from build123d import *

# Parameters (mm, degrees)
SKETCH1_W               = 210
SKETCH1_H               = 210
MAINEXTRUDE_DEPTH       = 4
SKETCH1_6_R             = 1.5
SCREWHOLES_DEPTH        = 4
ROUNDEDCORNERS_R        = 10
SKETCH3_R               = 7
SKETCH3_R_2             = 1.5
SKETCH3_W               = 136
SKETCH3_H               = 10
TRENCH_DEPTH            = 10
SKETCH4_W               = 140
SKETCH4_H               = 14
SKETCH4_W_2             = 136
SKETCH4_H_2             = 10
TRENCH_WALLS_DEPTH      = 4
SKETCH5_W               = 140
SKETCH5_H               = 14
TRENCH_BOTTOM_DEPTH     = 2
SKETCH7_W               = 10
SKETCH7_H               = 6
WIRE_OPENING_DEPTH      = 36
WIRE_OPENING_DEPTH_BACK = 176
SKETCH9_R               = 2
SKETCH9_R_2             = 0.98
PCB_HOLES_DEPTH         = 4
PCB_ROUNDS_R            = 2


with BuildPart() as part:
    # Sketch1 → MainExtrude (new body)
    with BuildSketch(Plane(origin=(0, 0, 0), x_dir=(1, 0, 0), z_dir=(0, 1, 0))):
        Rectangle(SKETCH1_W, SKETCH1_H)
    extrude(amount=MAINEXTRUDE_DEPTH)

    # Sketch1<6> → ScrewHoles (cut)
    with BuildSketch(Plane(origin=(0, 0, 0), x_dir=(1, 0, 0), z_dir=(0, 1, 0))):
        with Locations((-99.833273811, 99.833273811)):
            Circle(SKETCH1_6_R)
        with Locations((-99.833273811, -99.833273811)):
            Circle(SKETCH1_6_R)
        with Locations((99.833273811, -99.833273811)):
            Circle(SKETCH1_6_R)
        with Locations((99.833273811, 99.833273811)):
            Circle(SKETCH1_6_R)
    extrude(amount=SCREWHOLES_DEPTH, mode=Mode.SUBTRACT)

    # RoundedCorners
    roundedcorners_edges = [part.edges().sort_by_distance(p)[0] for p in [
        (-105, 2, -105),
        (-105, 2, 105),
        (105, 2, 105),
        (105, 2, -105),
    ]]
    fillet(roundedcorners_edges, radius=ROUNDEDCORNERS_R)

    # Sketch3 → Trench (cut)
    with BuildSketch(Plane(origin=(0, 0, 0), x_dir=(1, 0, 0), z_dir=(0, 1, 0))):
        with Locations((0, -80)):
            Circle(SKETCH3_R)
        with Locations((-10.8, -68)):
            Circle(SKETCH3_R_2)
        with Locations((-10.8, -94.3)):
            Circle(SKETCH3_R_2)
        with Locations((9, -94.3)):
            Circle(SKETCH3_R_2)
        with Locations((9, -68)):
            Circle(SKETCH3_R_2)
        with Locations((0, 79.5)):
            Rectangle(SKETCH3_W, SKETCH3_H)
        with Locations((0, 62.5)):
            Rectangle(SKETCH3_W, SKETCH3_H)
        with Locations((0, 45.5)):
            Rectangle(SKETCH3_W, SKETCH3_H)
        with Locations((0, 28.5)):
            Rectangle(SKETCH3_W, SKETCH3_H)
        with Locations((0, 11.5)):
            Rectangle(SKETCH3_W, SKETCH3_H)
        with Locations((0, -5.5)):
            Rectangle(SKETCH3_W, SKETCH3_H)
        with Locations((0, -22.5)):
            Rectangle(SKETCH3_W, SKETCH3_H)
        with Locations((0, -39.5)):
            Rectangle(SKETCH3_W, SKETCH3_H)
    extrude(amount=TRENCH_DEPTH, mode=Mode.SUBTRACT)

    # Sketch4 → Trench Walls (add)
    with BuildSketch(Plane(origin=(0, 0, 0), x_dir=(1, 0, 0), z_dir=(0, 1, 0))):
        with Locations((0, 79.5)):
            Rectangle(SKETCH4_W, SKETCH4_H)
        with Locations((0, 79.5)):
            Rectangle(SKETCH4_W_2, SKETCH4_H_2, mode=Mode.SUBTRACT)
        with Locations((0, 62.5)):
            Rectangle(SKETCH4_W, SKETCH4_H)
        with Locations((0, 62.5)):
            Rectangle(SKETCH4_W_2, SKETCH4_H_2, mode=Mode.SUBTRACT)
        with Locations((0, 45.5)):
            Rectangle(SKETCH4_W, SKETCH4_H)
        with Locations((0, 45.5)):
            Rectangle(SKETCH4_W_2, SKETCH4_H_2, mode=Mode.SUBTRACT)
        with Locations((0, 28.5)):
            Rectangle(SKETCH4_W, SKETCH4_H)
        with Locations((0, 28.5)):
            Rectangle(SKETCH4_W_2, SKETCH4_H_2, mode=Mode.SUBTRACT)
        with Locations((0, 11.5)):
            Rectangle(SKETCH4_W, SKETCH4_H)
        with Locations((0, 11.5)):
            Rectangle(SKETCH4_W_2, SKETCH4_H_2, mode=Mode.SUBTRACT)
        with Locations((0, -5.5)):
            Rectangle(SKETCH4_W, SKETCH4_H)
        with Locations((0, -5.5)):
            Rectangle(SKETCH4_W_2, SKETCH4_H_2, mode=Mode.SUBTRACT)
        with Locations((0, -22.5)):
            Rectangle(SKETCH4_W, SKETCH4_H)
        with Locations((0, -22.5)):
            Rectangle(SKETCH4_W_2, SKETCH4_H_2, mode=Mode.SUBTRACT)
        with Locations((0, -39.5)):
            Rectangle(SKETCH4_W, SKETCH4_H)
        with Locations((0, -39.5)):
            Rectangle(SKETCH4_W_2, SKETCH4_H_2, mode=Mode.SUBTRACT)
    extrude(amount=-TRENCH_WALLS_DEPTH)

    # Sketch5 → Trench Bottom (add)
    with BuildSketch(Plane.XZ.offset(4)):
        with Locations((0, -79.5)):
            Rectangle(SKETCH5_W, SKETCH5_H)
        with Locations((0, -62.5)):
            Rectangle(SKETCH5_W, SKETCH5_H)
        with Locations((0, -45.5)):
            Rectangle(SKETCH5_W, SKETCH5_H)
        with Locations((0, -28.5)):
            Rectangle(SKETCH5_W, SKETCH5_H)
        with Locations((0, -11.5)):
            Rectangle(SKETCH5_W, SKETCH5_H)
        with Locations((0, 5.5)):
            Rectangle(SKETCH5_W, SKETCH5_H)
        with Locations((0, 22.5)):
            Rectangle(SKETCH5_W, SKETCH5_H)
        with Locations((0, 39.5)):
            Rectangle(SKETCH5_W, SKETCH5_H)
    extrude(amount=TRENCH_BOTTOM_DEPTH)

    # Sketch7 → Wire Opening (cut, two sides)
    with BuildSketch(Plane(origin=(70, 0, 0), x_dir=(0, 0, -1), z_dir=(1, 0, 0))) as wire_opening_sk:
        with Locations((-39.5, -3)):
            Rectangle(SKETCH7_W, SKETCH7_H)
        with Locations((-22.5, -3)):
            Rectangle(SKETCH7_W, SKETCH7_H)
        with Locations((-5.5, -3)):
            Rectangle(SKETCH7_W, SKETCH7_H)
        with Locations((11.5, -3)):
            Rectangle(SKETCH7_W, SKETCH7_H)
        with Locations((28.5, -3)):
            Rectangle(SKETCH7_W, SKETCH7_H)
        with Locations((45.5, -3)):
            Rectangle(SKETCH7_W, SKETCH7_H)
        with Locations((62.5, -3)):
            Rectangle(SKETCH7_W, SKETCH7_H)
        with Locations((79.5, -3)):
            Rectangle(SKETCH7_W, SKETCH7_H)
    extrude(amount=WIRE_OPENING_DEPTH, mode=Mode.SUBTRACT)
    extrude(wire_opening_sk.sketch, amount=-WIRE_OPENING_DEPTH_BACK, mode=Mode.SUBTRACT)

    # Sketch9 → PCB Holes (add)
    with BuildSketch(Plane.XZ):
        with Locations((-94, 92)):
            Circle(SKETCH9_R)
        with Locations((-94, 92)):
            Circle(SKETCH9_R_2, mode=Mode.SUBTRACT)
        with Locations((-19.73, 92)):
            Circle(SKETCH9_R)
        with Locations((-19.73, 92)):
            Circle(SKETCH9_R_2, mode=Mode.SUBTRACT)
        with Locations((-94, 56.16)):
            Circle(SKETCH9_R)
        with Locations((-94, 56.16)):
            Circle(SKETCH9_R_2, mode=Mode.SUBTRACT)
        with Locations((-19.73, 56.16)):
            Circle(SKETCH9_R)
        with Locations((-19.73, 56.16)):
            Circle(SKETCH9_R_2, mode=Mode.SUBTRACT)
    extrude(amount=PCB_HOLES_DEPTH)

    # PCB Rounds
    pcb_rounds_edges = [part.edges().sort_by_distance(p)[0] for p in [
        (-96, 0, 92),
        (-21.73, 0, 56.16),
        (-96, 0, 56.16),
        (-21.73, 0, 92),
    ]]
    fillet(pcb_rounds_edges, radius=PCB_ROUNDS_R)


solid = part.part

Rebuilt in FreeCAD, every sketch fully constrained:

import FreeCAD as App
import Part
import Sketcher


def edges_at(feature, points):
    """Names of the edges that pass closest to the given points."""
    edges = feature.Shape.Edges
    near = lambda p: min(range(len(edges)), key=lambda i: edges[i].distToShape(Part.Vertex(*p))[0])
    return sorted({f"Edge{near(p) + 1}" for p in points})


def add_polygon(sketch, points):
    """Adds a closed chain of lines whose ends are joined by coincident constraints."""
    first, n = sketch.GeometryCount, len(points)
    for a, b in zip(points, points[1:] + points[:1]):
        sketch.addGeometry(Part.LineSegment(App.Vector(*a, 0), App.Vector(*b, 0)), False)
    for i in range(n):
        sketch.addConstraint(Sketcher.Constraint("Coincident", first + i, 2, first + (i + 1) % n, 1))

doc = App.newDocument("Part")
params = doc.addObject("Spreadsheet::Sheet", "Params")
for row, (alias, value) in enumerate([
    ("sketch1_width", "210 mm"),
    ("pad1_length", "4 mm"),
    ("sketch2_diameter", "3 mm"),
    ("pocket1_length", "4 mm"),
    ("fillet_radius", "10 mm"),
    ("sketch3_diameter", "14 mm"),
    ("sketch3_diameter2", "3 mm"),
    ("sketch3_width", "136 mm"),
    ("sketch3_height", "10 mm"),
    ("pocket2_length", "10 mm"),
    ("sketch4_width", "140 mm"),
    ("sketch4_width2", "136 mm"),
    ("sketch4_height", "14 mm"),
    ("sketch4_height2", "10 mm"),
    ("pad2_length", "4 mm"),
    ("sketch5_width", "140 mm"),
    ("sketch5_height", "14 mm"),
    ("pad3_length", "2 mm"),
    ("sketch6_width", "6 mm"),
    ("sketch6_height", "10 mm"),
    ("sketch7_diameter", "4 mm"),
    ("sketch7_diameter2", "1.96 mm"),
    ("pad4_length", "4 mm"),
    ("fillet2_radius", "2 mm"),
], start=1):
    params.set(f"A{row}", alias)
    params.set(f"B{row}", "=" + value)
    params.setAlias(f"B{row}", alias)

body = doc.addObject("PartDesign::Body", "Body")

# Sketch on XZ plane
sketch1 = body.newObject("Sketcher::SketchObject", "Sketch")
sketch1.AttachmentSupport = (doc.getObject("XZ_Plane"), [""])
sketch1.MapMode = "FlatFace"
add_polygon(sketch1, [(-105, -105), (-105, 105), (105, 105), (105, -105)])  # lines 0-3
sketch1.addConstraint(Sketcher.Constraint("Vertical", 0))
sketch1.addConstraint(Sketcher.Constraint("Horizontal", 1))
sketch1.addConstraint(Sketcher.Constraint("Vertical", 2))
sketch1.addConstraint(Sketcher.Constraint("Horizontal", 3))
sketch1.addConstraint(Sketcher.Constraint("Symmetric", 0, 2, 2, 2, -1, 1))
sketch1.addConstraint(Sketcher.Constraint("Equal", 3, 0))
sketch1.addConstraint(Sketcher.Constraint("DistanceX", 1, 1, 1, 2, 210.0))
sketch1.setExpression("Constraints[10]", "Params.sketch1_width")
pad1 = body.newObject("PartDesign::Pad", "Pad")
pad1.Profile = sketch1
pad1.setExpression("Length", "Params.pad1_length")
pad1.Reversed = True

# Sketch on XZ plane
sketch2 = body.newObject("Sketcher::SketchObject", "Sketch001")
sketch2.AttachmentSupport = (doc.getObject("XZ_Plane"), [""])
sketch2.MapMode = "FlatFace"
sketch2.addGeometry(Part.Circle(App.Vector(-99.8, -99.8, 0), App.Vector(0, 0, 1), 1.5), False)
sketch2.addGeometry(Part.Circle(App.Vector(-99.8, 99.8, 0), App.Vector(0, 0, 1), 1.5), False)
sketch2.addGeometry(Part.Circle(App.Vector(99.8, 99.8, 0), App.Vector(0, 0, 1), 1.5), False)
sketch2.addGeometry(Part.Circle(App.Vector(99.8, -99.8, 0), App.Vector(0, 0, 1), 1.5), False)
sketch2.addConstraint(Sketcher.Constraint("Equal", 0, 1))
sketch2.addConstraint(Sketcher.Constraint("Equal", 1, 2))
sketch2.addConstraint(Sketcher.Constraint("Equal", 2, 3))
sketch2.addConstraint(Sketcher.Constraint("Symmetric", 0, 3, 2, 3, -1, 1))
sketch2.addConstraint(Sketcher.Constraint("Symmetric", 1, 3, 3, 3, -1, 1))
sketch2.addConstraint(Sketcher.Constraint("Symmetric", 1, 3, 2, 3, -2))
sketch2.addConstraint(Sketcher.Constraint("Diameter", 0, 3.0))
sketch2.addConstraint(Sketcher.Constraint("DistanceX", 0, 3, -1, 1, 99.833274))
sketch2.addConstraint(Sketcher.Constraint("DistanceY", 0, 3, -1, 1, 99.833274))
sketch2.setExpression("Constraints[6]", "Params.sketch2_diameter")
pocket1 = body.newObject("PartDesign::Pocket", "Pocket")
pocket1.Profile = sketch2
pocket1.setExpression("Length", "Params.pocket1_length")
doc.recompute()

fillet = body.newObject("PartDesign::Fillet", "Fillet")
fillet.Base = (pocket1, edges_at(pocket1, [
    (-105, 2, -105),
    (-105, 2, 105),
    (105, 2, 105),
    (105, 2, -105),
]))
fillet.setExpression("Radius", "Params.fillet_radius")

# Sketch on XZ plane
sketch3 = body.newObject("Sketcher::SketchObject", "Sketch002")
sketch3.AttachmentSupport = (doc.getObject("XZ_Plane"), [""])
sketch3.MapMode = "FlatFace"
sketch3.addGeometry(Part.Circle(App.Vector(0, 80, 0), App.Vector(0, 0, 1), 7), False)  # 0
sketch3.addGeometry(Part.Circle(App.Vector(-10.8, 68, 0), App.Vector(0, 0, 1), 1.5), False)  # 1
sketch3.addGeometry(Part.Circle(App.Vector(-10.8, 94.3, 0), App.Vector(0, 0, 1), 1.5), False)  # 2
sketch3.addGeometry(Part.Circle(App.Vector(9, 94.3, 0), App.Vector(0, 0, 1), 1.5), False)  # 3
sketch3.addGeometry(Part.Circle(App.Vector(9, 68, 0), App.Vector(0, 0, 1), 1.5), False)  # 4
add_polygon(sketch3, [(-68, -84.5), (-68, -74.5), (68, -74.5), (68, -84.5)])  # lines 5-8
add_polygon(sketch3, [(-68, -67.5), (-68, -57.5), (68, -57.5), (68, -67.5)])  # lines 9-12
add_polygon(sketch3, [(-68, -50.5), (-68, -40.5), (68, -40.5), (68, -50.5)])  # lines 13-16
add_polygon(sketch3, [(-68, -33.5), (-68, -23.5), (68, -23.5), (68, -33.5)])  # lines 17-20
add_polygon(sketch3, [(-68, -16.5), (-68, -6.5), (68, -6.5), (68, -16.5)])  # lines 21-24
add_polygon(sketch3, [(-68, 0.5), (-68, 10.5), (68, 10.5), (68, 0.5)])  # lines 25-28
add_polygon(sketch3, [(-68, 17.5), (-68, 27.5), (68, 27.5), (68, 17.5)])  # lines 29-32
add_polygon(sketch3, [(-68, 34.5), (-68, 44.5), (68, 44.5), (68, 34.5)])  # lines 33-36
sketch3.addConstraint(Sketcher.Constraint("Vertical", 5))
sketch3.addConstraint(Sketcher.Constraint("Horizontal", 6))
sketch3.addConstraint(Sketcher.Constraint("Vertical", 7))
sketch3.addConstraint(Sketcher.Constraint("Horizontal", 8))
sketch3.addConstraint(Sketcher.Constraint("Vertical", 9))
sketch3.addConstraint(Sketcher.Constraint("Horizontal", 10))
sketch3.addConstraint(Sketcher.Constraint("Vertical", 11))
sketch3.addConstraint(Sketcher.Constraint("Horizontal", 12))
sketch3.addConstraint(Sketcher.Constraint("Vertical", 13))
sketch3.addConstraint(Sketcher.Constraint("Horizontal", 14))
sketch3.addConstraint(Sketcher.Constraint("Vertical", 15))
sketch3.addConstraint(Sketcher.Constraint("Horizontal", 16))
sketch3.addConstraint(Sketcher.Constraint("Vertical", 17))
sketch3.addConstraint(Sketcher.Constraint("Horizontal", 18))
sketch3.addConstraint(Sketcher.Constraint("Vertical", 19))
sketch3.addConstraint(Sketcher.Constraint("Horizontal", 20))
sketch3.addConstraint(Sketcher.Constraint("Vertical", 21))
sketch3.addConstraint(Sketcher.Constraint("Horizontal", 22))
sketch3.addConstraint(Sketcher.Constraint("Vertical", 23))
sketch3.addConstraint(Sketcher.Constraint("Horizontal", 24))
sketch3.addConstraint(Sketcher.Constraint("Vertical", 25))
sketch3.addConstraint(Sketcher.Constraint("Horizontal", 26))
sketch3.addConstraint(Sketcher.Constraint("Vertical", 27))
sketch3.addConstraint(Sketcher.Constraint("Horizontal", 28))
sketch3.addConstraint(Sketcher.Constraint("Vertical", 29))
sketch3.addConstraint(Sketcher.Constraint("Horizontal", 30))
sketch3.addConstraint(Sketcher.Constraint("Vertical", 31))
sketch3.addConstraint(Sketcher.Constraint("Horizontal", 32))
sketch3.addConstraint(Sketcher.Constraint("Vertical", 33))
sketch3.addConstraint(Sketcher.Constraint("Horizontal", 34))
sketch3.addConstraint(Sketcher.Constraint("Vertical", 35))
sketch3.addConstraint(Sketcher.Constraint("Horizontal", 36))
sketch3.addConstraint(Sketcher.Constraint("Equal", 1, 2))
sketch3.addConstraint(Sketcher.Constraint("Equal", 2, 3))
sketch3.addConstraint(Sketcher.Constraint("Equal", 3, 4))
sketch3.addConstraint(Sketcher.Constraint("PointOnObject", 0, 3, -2))
sketch3.addConstraint(Sketcher.Constraint("Horizontal", 2, 3, 3, 3))
sketch3.addConstraint(Sketcher.Constraint("Horizontal", 1, 3, 4, 3))
sketch3.addConstraint(Sketcher.Constraint("Vertical", 1, 3, 2, 3))
sketch3.addConstraint(Sketcher.Constraint("Vertical", 3, 3, 4, 3))
sketch3.addConstraint(Sketcher.Constraint("Vertical", 8, 2, 9, 2))
sketch3.addConstraint(Sketcher.Constraint("Vertical", 7, 2, 10, 2))
sketch3.addConstraint(Sketcher.Constraint("Vertical", 12, 2, 13, 2))
sketch3.addConstraint(Sketcher.Constraint("Vertical", 11, 2, 14, 2))
sketch3.addConstraint(Sketcher.Constraint("Vertical", 16, 2, 17, 2))
sketch3.addConstraint(Sketcher.Constraint("Vertical", 15, 2, 18, 2))
sketch3.addConstraint(Sketcher.Constraint("Vertical", 20, 2, 21, 2))
sketch3.addConstraint(Sketcher.Constraint("Vertical", 19, 2, 22, 2))
sketch3.addConstraint(Sketcher.Constraint("Vertical", 24, 2, 25, 2))
sketch3.addConstraint(Sketcher.Constraint("Vertical", 23, 2, 26, 2))
sketch3.addConstraint(Sketcher.Constraint("Vertical", 28, 2, 29, 2))
sketch3.addConstraint(Sketcher.Constraint("Vertical", 27, 2, 30, 2))
sketch3.addConstraint(Sketcher.Constraint("Vertical", 32, 2, 33, 2))
sketch3.addConstraint(Sketcher.Constraint("Vertical", 31, 2, 34, 2))
sketch3.addConstraint(Sketcher.Constraint("Equal", 7, 9))
sketch3.addConstraint(Sketcher.Constraint("Equal", 11, 13))
sketch3.addConstraint(Sketcher.Constraint("Equal", 15, 17))
sketch3.addConstraint(Sketcher.Constraint("Equal", 19, 21))
sketch3.addConstraint(Sketcher.Constraint("Equal", 23, 25))
sketch3.addConstraint(Sketcher.Constraint("Equal", 27, 29))
sketch3.addConstraint(Sketcher.Constraint("Equal", 31, 33))
sketch3.addConstraint(Sketcher.Constraint("Diameter", 0, 14.0))
sketch3.addConstraint(Sketcher.Constraint("Diameter", 1, 3.0))
sketch3.addConstraint(Sketcher.Constraint("DistanceX", 6, 1, 6, 2, 136.0))
sketch3.addConstraint(Sketcher.Constraint("DistanceY", 5, 1, 5, 2, 10.0))
sketch3.addConstraint(Sketcher.Constraint("DistanceY", -1, 1, 0, 3, 80.0))
sketch3.addConstraint(Sketcher.Constraint("DistanceY", -1, 1, 1, 3, 68.0))
sketch3.addConstraint(Sketcher.Constraint("DistanceX", -1, 1, 3, 3, 9.0))
sketch3.addConstraint(Sketcher.Constraint("DistanceX", 5, 2, -1, 1, 68.0))
sketch3.addConstraint(Sketcher.Constraint("DistanceY", 5, 2, 9, 2, 17.0))
sketch3.addConstraint(Sketcher.Constraint("DistanceY", 9, 2, 13, 2, 17.0))
sketch3.addConstraint(Sketcher.Constraint("DistanceY", 13, 2, 17, 2, 17.0))
sketch3.addConstraint(Sketcher.Constraint("DistanceY", 17, 2, 21, 2, 17.0))
sketch3.addConstraint(Sketcher.Constraint("DistanceY", 21, 2, 25, 2, 17.0))
sketch3.addConstraint(Sketcher.Constraint("DistanceY", 25, 2, 29, 2, 17.0))
sketch3.addConstraint(Sketcher.Constraint("DistanceY", 29, 2, 33, 2, 17.0))
sketch3.addConstraint(Sketcher.Constraint("DistanceX", 1, 3, -1, 1, 10.8))
sketch3.addConstraint(Sketcher.Constraint("DistanceY", -1, 1, 2, 3, 94.3))
sketch3.addConstraint(Sketcher.Constraint("DistanceY", 5, 2, -1, 1, 74.5))
sketch3.setExpression("Constraints[93]", "Params.sketch3_diameter")
sketch3.setExpression("Constraints[94]", "Params.sketch3_diameter2")
sketch3.setExpression("Constraints[95]", "Params.sketch3_width")
sketch3.setExpression("Constraints[96]", "Params.sketch3_height")
pocket2 = body.newObject("PartDesign::Pocket", "Pocket001")
pocket2.Profile = sketch3
pocket2.setExpression("Length", "Params.pocket2_length")

# Sketch on XZ plane
sketch4 = body.newObject("Sketcher::SketchObject", "Sketch003")
sketch4.AttachmentSupport = (doc.getObject("XZ_Plane"), [""])
sketch4.MapMode = "FlatFace"
add_polygon(sketch4, [(-70, -86), (-70, -72), (70, -72), (70, -86)])  # lines 0-3
add_polygon(sketch4, [(68, -74), (-68, -74), (-68, -84), (68, -84)])  # lines 4-7
add_polygon(sketch4, [(-70, -70), (-70, -56), (70, -56), (70, -70)])  # lines 8-11
add_polygon(sketch4, [(68, -58), (-68, -58), (-68, -68), (68, -68)])  # lines 12-15
add_polygon(sketch4, [(-70, -52), (-70, -38), (70, -38), (70, -52)])  # lines 16-19
add_polygon(sketch4, [(68, -40), (-68, -40), (-68, -50), (68, -50)])  # lines 20-23
add_polygon(sketch4, [(-70, -36), (-70, -22), (70, -22), (70, -36)])  # lines 24-27
add_polygon(sketch4, [(68, -24), (-68, -24), (-68, -34), (68, -34)])  # lines 28-31
add_polygon(sketch4, [(-70, -18), (-70, -4), (70, -4), (70, -18)])  # lines 32-35
add_polygon(sketch4, [(68, -6), (-68, -6), (-68, -16), (68, -16)])  # lines 36-39
add_polygon(sketch4, [(-70, -2), (-70, 12), (70, 12), (70, -2)])  # lines 40-43
add_polygon(sketch4, [(68, 10), (-68, 10), (-68, 0), (68, 0)])  # lines 44-47
add_polygon(sketch4, [(-70, 16), (-70, 30), (70, 30), (70, 16)])  # lines 48-51
add_polygon(sketch4, [(68, 28), (-68, 28), (-68, 18), (68, 18)])  # lines 52-55
add_polygon(sketch4, [(-70, 32), (-70, 46), (70, 46), (70, 32)])  # lines 56-59
add_polygon(sketch4, [(68, 44), (-68, 44), (-68, 34), (68, 34)])  # lines 60-63
sketch4.addConstraint(Sketcher.Constraint("Vertical", 0))
sketch4.addConstraint(Sketcher.Constraint("Horizontal", 1))
sketch4.addConstraint(Sketcher.Constraint("Vertical", 2))
sketch4.addConstraint(Sketcher.Constraint("Horizontal", 3))
sketch4.addConstraint(Sketcher.Constraint("Horizontal", 4))
sketch4.addConstraint(Sketcher.Constraint("Vertical", 5))
sketch4.addConstraint(Sketcher.Constraint("Horizontal", 6))
sketch4.addConstraint(Sketcher.Constraint("Vertical", 7))
sketch4.addConstraint(Sketcher.Constraint("Vertical", 8))
sketch4.addConstraint(Sketcher.Constraint("Horizontal", 9))
sketch4.addConstraint(Sketcher.Constraint("Vertical", 10))
sketch4.addConstraint(Sketcher.Constraint("Horizontal", 11))
sketch4.addConstraint(Sketcher.Constraint("Horizontal", 12))
sketch4.addConstraint(Sketcher.Constraint("Vertical", 13))
sketch4.addConstraint(Sketcher.Constraint("Horizontal", 14))
sketch4.addConstraint(Sketcher.Constraint("Vertical", 15))
sketch4.addConstraint(Sketcher.Constraint("Vertical", 16))
sketch4.addConstraint(Sketcher.Constraint("Horizontal", 17))
sketch4.addConstraint(Sketcher.Constraint("Vertical", 18))
sketch4.addConstraint(Sketcher.Constraint("Horizontal", 19))
sketch4.addConstraint(Sketcher.Constraint("Horizontal", 20))
sketch4.addConstraint(Sketcher.Constraint("Vertical", 21))
sketch4.addConstraint(Sketcher.Constraint("Horizontal", 22))
sketch4.addConstraint(Sketcher.Constraint("Vertical", 23))
sketch4.addConstraint(Sketcher.Constraint("Vertical", 24))
sketch4.addConstraint(Sketcher.Constraint("Horizontal", 25))
sketch4.addConstraint(Sketcher.Constraint("Vertical", 26))
sketch4.addConstraint(Sketcher.Constraint("Horizontal", 27))
sketch4.addConstraint(Sketcher.Constraint("Horizontal", 28))
sketch4.addConstraint(Sketcher.Constraint("Vertical", 29))
sketch4.addConstraint(Sketcher.Constraint("Horizontal", 30))
sketch4.addConstraint(Sketcher.Constraint("Vertical", 31))
sketch4.addConstraint(Sketcher.Constraint("Vertical", 32))
sketch4.addConstraint(Sketcher.Constraint("Horizontal", 33))
sketch4.addConstraint(Sketcher.Constraint("Vertical", 34))
sketch4.addConstraint(Sketcher.Constraint("Horizontal", 35))
sketch4.addConstraint(Sketcher.Constraint("Horizontal", 36))
sketch4.addConstraint(Sketcher.Constraint("Vertical", 37))
sketch4.addConstraint(Sketcher.Constraint("Horizontal", 38))
sketch4.addConstraint(Sketcher.Constraint("Vertical", 39))
sketch4.addConstraint(Sketcher.Constraint("Vertical", 40))
sketch4.addConstraint(Sketcher.Constraint("Horizontal", 41))
sketch4.addConstraint(Sketcher.Constraint("Vertical", 42))
sketch4.addConstraint(Sketcher.Constraint("Horizontal", 43))
sketch4.addConstraint(Sketcher.Constraint("Horizontal", 44))
sketch4.addConstraint(Sketcher.Constraint("Vertical", 45))
sketch4.addConstraint(Sketcher.Constraint("Horizontal", 46))
sketch4.addConstraint(Sketcher.Constraint("Vertical", 47))
sketch4.addConstraint(Sketcher.Constraint("Vertical", 48))
sketch4.addConstraint(Sketcher.Constraint("Horizontal", 49))
sketch4.addConstraint(Sketcher.Constraint("Vertical", 50))
sketch4.addConstraint(Sketcher.Constraint("Horizontal", 51))
sketch4.addConstraint(Sketcher.Constraint("Horizontal", 52))
sketch4.addConstraint(Sketcher.Constraint("Vertical", 53))
sketch4.addConstraint(Sketcher.Constraint("Horizontal", 54))
sketch4.addConstraint(Sketcher.Constraint("Vertical", 55))
sketch4.addConstraint(Sketcher.Constraint("Vertical", 56))
sketch4.addConstraint(Sketcher.Constraint("Horizontal", 57))
sketch4.addConstraint(Sketcher.Constraint("Vertical", 58))
sketch4.addConstraint(Sketcher.Constraint("Horizontal", 59))
sketch4.addConstraint(Sketcher.Constraint("Horizontal", 60))
sketch4.addConstraint(Sketcher.Constraint("Vertical", 61))
sketch4.addConstraint(Sketcher.Constraint("Horizontal", 62))
sketch4.addConstraint(Sketcher.Constraint("Vertical", 63))
sketch4.addConstraint(Sketcher.Constraint("Vertical", 3, 2, 8, 2))
sketch4.addConstraint(Sketcher.Constraint("Vertical", 2, 2, 9, 2))
sketch4.addConstraint(Sketcher.Constraint("Vertical", 5, 2, 12, 2))
sketch4.addConstraint(Sketcher.Constraint("Vertical", 7, 2, 14, 2))
sketch4.addConstraint(Sketcher.Constraint("Vertical", 11, 2, 16, 2))
sketch4.addConstraint(Sketcher.Constraint("Vertical", 10, 2, 17, 2))
sketch4.addConstraint(Sketcher.Constraint("Vertical", 13, 2, 20, 2))
sketch4.addConstraint(Sketcher.Constraint("Vertical", 15, 2, 22, 2))
sketch4.addConstraint(Sketcher.Constraint("Vertical", 19, 2, 24, 2))
sketch4.addConstraint(Sketcher.Constraint("Vertical", 18, 2, 25, 2))
sketch4.addConstraint(Sketcher.Constraint("Vertical", 21, 2, 28, 2))
sketch4.addConstraint(Sketcher.Constraint("Vertical", 23, 2, 30, 2))
sketch4.addConstraint(Sketcher.Constraint("Vertical", 27, 2, 32, 2))
sketch4.addConstraint(Sketcher.Constraint("Vertical", 26, 2, 33, 2))
sketch4.addConstraint(Sketcher.Constraint("Vertical", 29, 2, 36, 2))
sketch4.addConstraint(Sketcher.Constraint("Vertical", 31, 2, 38, 2))
sketch4.addConstraint(Sketcher.Constraint("Vertical", 35, 2, 40, 2))
sketch4.addConstraint(Sketcher.Constraint("Vertical", 34, 2, 41, 2))
sketch4.addConstraint(Sketcher.Constraint("Vertical", 37, 2, 44, 2))
sketch4.addConstraint(Sketcher.Constraint("Vertical", 39, 2, 46, 2))
sketch4.addConstraint(Sketcher.Constraint("Vertical", 43, 2, 48, 2))
sketch4.addConstraint(Sketcher.Constraint("Vertical", 42, 2, 49, 2))
sketch4.addConstraint(Sketcher.Constraint("Vertical", 45, 2, 52, 2))
sketch4.addConstraint(Sketcher.Constraint("Vertical", 47, 2, 54, 2))
sketch4.addConstraint(Sketcher.Constraint("Vertical", 51, 2, 56, 2))
sketch4.addConstraint(Sketcher.Constraint("Vertical", 50, 2, 57, 2))
sketch4.addConstraint(Sketcher.Constraint("Vertical", 53, 2, 60, 2))
sketch4.addConstraint(Sketcher.Constraint("Vertical", 55, 2, 62, 2))
sketch4.addConstraint(Sketcher.Constraint("Equal", 2, 8))
sketch4.addConstraint(Sketcher.Constraint("Equal", 7, 13))
sketch4.addConstraint(Sketcher.Constraint("Equal", 10, 16))
sketch4.addConstraint(Sketcher.Constraint("Equal", 15, 21))
sketch4.addConstraint(Sketcher.Constraint("Equal", 18, 24))
sketch4.addConstraint(Sketcher.Constraint("Equal", 23, 29))
sketch4.addConstraint(Sketcher.Constraint("Equal", 26, 32))
sketch4.addConstraint(Sketcher.Constraint("Equal", 31, 37))
sketch4.addConstraint(Sketcher.Constraint("Equal", 34, 40))
sketch4.addConstraint(Sketcher.Constraint("Equal", 39, 45))
sketch4.addConstraint(Sketcher.Constraint("Equal", 42, 48))
sketch4.addConstraint(Sketcher.Constraint("Equal", 47, 53))
sketch4.addConstraint(Sketcher.Constraint("Equal", 50, 56))
sketch4.addConstraint(Sketcher.Constraint("Equal", 55, 61))
sketch4.addConstraint(Sketcher.Constraint("DistanceX", 1, 1, 1, 2, 140.0))
sketch4.addConstraint(Sketcher.Constraint("DistanceX", 4, 2, 4, 1, 136.0))
sketch4.addConstraint(Sketcher.Constraint("DistanceY", 0, 1, 0, 2, 14.0))
sketch4.addConstraint(Sketcher.Constraint("DistanceY", 5, 2, 5, 1, 10.0))
sketch4.addConstraint(Sketcher.Constraint("DistanceX", 0, 2, -1, 1, 70.0))
sketch4.addConstraint(Sketcher.Constraint("DistanceX", 4, 2, -1, 1, 68.0))
sketch4.addConstraint(Sketcher.Constraint("DistanceY", 0, 2, -1, 1, 72.5))
sketch4.addConstraint(Sketcher.Constraint("DistanceY", 4, 2, -1, 1, 74.5))
sketch4.addConstraint(Sketcher.Constraint("DistanceY", 8, 2, -1, 1, 55.5))
sketch4.addConstraint(Sketcher.Constraint("DistanceY", 12, 2, -1, 1, 57.5))
sketch4.addConstraint(Sketcher.Constraint("DistanceY", 16, 2, -1, 1, 38.5))
sketch4.addConstraint(Sketcher.Constraint("DistanceY", 20, 2, -1, 1, 40.5))
sketch4.addConstraint(Sketcher.Constraint("DistanceY", 24, 2, -1, 1, 21.5))
sketch4.addConstraint(Sketcher.Constraint("DistanceY", 28, 2, -1, 1, 23.5))
sketch4.addConstraint(Sketcher.Constraint("DistanceY", 32, 2, -1, 1, 4.5))
sketch4.addConstraint(Sketcher.Constraint("DistanceY", 36, 2, -1, 1, 6.5))
sketch4.addConstraint(Sketcher.Constraint("DistanceY", -1, 1, 40, 2, 12.5))
sketch4.addConstraint(Sketcher.Constraint("DistanceY", -1, 1, 44, 2, 10.5))
sketch4.addConstraint(Sketcher.Constraint("DistanceY", -1, 1, 48, 2, 29.5))
sketch4.addConstraint(Sketcher.Constraint("DistanceY", -1, 1, 52, 2, 27.5))
sketch4.addConstraint(Sketcher.Constraint("DistanceY", -1, 1, 56, 2, 46.5))
sketch4.addConstraint(Sketcher.Constraint("DistanceY", -1, 1, 60, 2, 44.5))
sketch4.setExpression("Constraints[170]", "Params.sketch4_width")
sketch4.setExpression("Constraints[171]", "Params.sketch4_width2")
sketch4.setExpression("Constraints[172]", "Params.sketch4_height")
sketch4.setExpression("Constraints[173]", "Params.sketch4_height2")
pad2 = body.newObject("PartDesign::Pad", "Pad001")
pad2.Profile = sketch4
pad2.setExpression("Length", "Params.pad2_length")

# Sketch on XZ plane
sketch5 = body.newObject("Sketcher::SketchObject", "Sketch004")
sketch5.AttachmentSupport = (doc.getObject("XZ_Plane"), [""])
sketch5.MapMode = "FlatFace"
sketch5.AttachmentOffset = App.Placement(App.Vector(0, 0, 4), App.Rotation())
add_polygon(sketch5, [(-70, -72), (-70, -86), (70, -86), (70, -72)])  # lines 0-3
add_polygon(sketch5, [(-70, -56), (-70, -70), (70, -70), (70, -56)])  # lines 4-7
add_polygon(sketch5, [(-70, -38), (-70, -52), (70, -52), (70, -38)])  # lines 8-11
add_polygon(sketch5, [(-70, -22), (-70, -36), (70, -36), (70, -22)])  # lines 12-15
add_polygon(sketch5, [(-70, -4), (-70, -18), (70, -18), (70, -4)])  # lines 16-19
add_polygon(sketch5, [(-70, 12), (-70, -2), (70, -2), (70, 12)])  # lines 20-23
add_polygon(sketch5, [(-70, 30), (-70, 16), (70, 16), (70, 30)])  # lines 24-27
add_polygon(sketch5, [(-70, 46), (-70, 32), (70, 32), (70, 46)])  # lines 28-31
sketch5.addConstraint(Sketcher.Constraint("Vertical", 0))
sketch5.addConstraint(Sketcher.Constraint("Horizontal", 1))
sketch5.addConstraint(Sketcher.Constraint("Vertical", 2))
sketch5.addConstraint(Sketcher.Constraint("Horizontal", 3))
sketch5.addConstraint(Sketcher.Constraint("Vertical", 4))
sketch5.addConstraint(Sketcher.Constraint("Horizontal", 5))
sketch5.addConstraint(Sketcher.Constraint("Vertical", 6))
sketch5.addConstraint(Sketcher.Constraint("Horizontal", 7))
sketch5.addConstraint(Sketcher.Constraint("Vertical", 8))
sketch5.addConstraint(Sketcher.Constraint("Horizontal", 9))
sketch5.addConstraint(Sketcher.Constraint("Vertical", 10))
sketch5.addConstraint(Sketcher.Constraint("Horizontal", 11))
sketch5.addConstraint(Sketcher.Constraint("Vertical", 12))
sketch5.addConstraint(Sketcher.Constraint("Horizontal", 13))
sketch5.addConstraint(Sketcher.Constraint("Vertical", 14))
sketch5.addConstraint(Sketcher.Constraint("Horizontal", 15))
sketch5.addConstraint(Sketcher.Constraint("Vertical", 16))
sketch5.addConstraint(Sketcher.Constraint("Horizontal", 17))
sketch5.addConstraint(Sketcher.Constraint("Vertical", 18))
sketch5.addConstraint(Sketcher.Constraint("Horizontal", 19))
sketch5.addConstraint(Sketcher.Constraint("Vertical", 20))
sketch5.addConstraint(Sketcher.Constraint("Horizontal", 21))
sketch5.addConstraint(Sketcher.Constraint("Vertical", 22))
sketch5.addConstraint(Sketcher.Constraint("Horizontal", 23))
sketch5.addConstraint(Sketcher.Constraint("Vertical", 24))
sketch5.addConstraint(Sketcher.Constraint("Horizontal", 25))
sketch5.addConstraint(Sketcher.Constraint("Vertical", 26))
sketch5.addConstraint(Sketcher.Constraint("Horizontal", 27))
sketch5.addConstraint(Sketcher.Constraint("Vertical", 28))
sketch5.addConstraint(Sketcher.Constraint("Horizontal", 29))
sketch5.addConstraint(Sketcher.Constraint("Vertical", 30))
sketch5.addConstraint(Sketcher.Constraint("Horizontal", 31))
sketch5.addConstraint(Sketcher.Constraint("Vertical", 3, 2, 4, 2))
sketch5.addConstraint(Sketcher.Constraint("Vertical", 2, 2, 5, 2))
sketch5.addConstraint(Sketcher.Constraint("Vertical", 7, 2, 8, 2))
sketch5.addConstraint(Sketcher.Constraint("Vertical", 6, 2, 9, 2))
sketch5.addConstraint(Sketcher.Constraint("Vertical", 11, 2, 12, 2))
sketch5.addConstraint(Sketcher.Constraint("Vertical", 10, 2, 13, 2))
sketch5.addConstraint(Sketcher.Constraint("Vertical", 15, 2, 16, 2))
sketch5.addConstraint(Sketcher.Constraint("Vertical", 14, 2, 17, 2))
sketch5.addConstraint(Sketcher.Constraint("Vertical", 19, 2, 20, 2))
sketch5.addConstraint(Sketcher.Constraint("Vertical", 18, 2, 21, 2))
sketch5.addConstraint(Sketcher.Constraint("Vertical", 23, 2, 24, 2))
sketch5.addConstraint(Sketcher.Constraint("Vertical", 22, 2, 25, 2))
sketch5.addConstraint(Sketcher.Constraint("Vertical", 27, 2, 28, 2))
sketch5.addConstraint(Sketcher.Constraint("Vertical", 26, 2, 29, 2))
sketch5.addConstraint(Sketcher.Constraint("Equal", 2, 4))
sketch5.addConstraint(Sketcher.Constraint("Equal", 6, 8))
sketch5.addConstraint(Sketcher.Constraint("Equal", 10, 12))
sketch5.addConstraint(Sketcher.Constraint("Equal", 14, 16))
sketch5.addConstraint(Sketcher.Constraint("Equal", 18, 20))
sketch5.addConstraint(Sketcher.Constraint("Equal", 22, 24))
sketch5.addConstraint(Sketcher.Constraint("Equal", 26, 28))
sketch5.addConstraint(Sketcher.Constraint("DistanceX", 1, 1, 1, 2, 140.0))
sketch5.addConstraint(Sketcher.Constraint("DistanceY", 0, 2, 0, 1, 14.0))
sketch5.addConstraint(Sketcher.Constraint("DistanceX", 0, 2, -1, 1, 70.0))
sketch5.addConstraint(Sketcher.Constraint("DistanceY", 3, 2, 4, 2, 3.0))
sketch5.addConstraint(Sketcher.Constraint("DistanceY", 7, 2, 8, 2, 3.0))
sketch5.addConstraint(Sketcher.Constraint("DistanceY", 11, 2, 12, 2, 3.0))
sketch5.addConstraint(Sketcher.Constraint("DistanceY", 15, 2, 16, 2, 3.0))
sketch5.addConstraint(Sketcher.Constraint("DistanceY", 19, 2, 20, 2, 3.0))
sketch5.addConstraint(Sketcher.Constraint("DistanceY", 23, 2, 24, 2, 3.0))
sketch5.addConstraint(Sketcher.Constraint("DistanceY", 27, 2, 28, 2, 3.0))
sketch5.addConstraint(Sketcher.Constraint("DistanceY", 0, 2, -1, 1, 86.5))
sketch5.setExpression("Constraints[85]", "Params.sketch5_width")
sketch5.setExpression("Constraints[86]", "Params.sketch5_height")
pad3 = body.newObject("PartDesign::Pad", "Pad002")
pad3.Profile = sketch5
pad3.setExpression("Length", "Params.pad3_length")

# Sketch on YZ plane
sketch6 = body.newObject("Sketcher::SketchObject", "Sketch005")
sketch6.AttachmentSupport = (doc.getObject("YZ_Plane"), [""])
sketch6.MapMode = "FlatFace"
sketch6.AttachmentOffset = App.Placement(App.Vector(0, 0, 70), App.Rotation())
add_polygon(sketch6, [(0, 44), (-6, 44), (-6, 34), (0, 34)])  # lines 0-3
add_polygon(sketch6, [(0, 28), (-6, 28), (-6, 18), (0, 18)])  # lines 4-7
add_polygon(sketch6, [(0, 10), (-6, 10), (-6, 0), (0, 0)])  # lines 8-11
add_polygon(sketch6, [(0, -6), (-6, -6), (-6, -16), (0, -16)])  # lines 12-15
add_polygon(sketch6, [(0, -24), (-6, -24), (-6, -34), (0, -34)])  # lines 16-19
add_polygon(sketch6, [(0, -40), (-6, -40), (-6, -50), (0, -50)])  # lines 20-23
add_polygon(sketch6, [(0, -58), (-6, -58), (-6, -68), (0, -68)])  # lines 24-27
add_polygon(sketch6, [(0, -74), (-6, -74), (-6, -84), (0, -84)])  # lines 28-31
sketch6.addConstraint(Sketcher.Constraint("Horizontal", 0))
sketch6.addConstraint(Sketcher.Constraint("Vertical", 1))
sketch6.addConstraint(Sketcher.Constraint("Horizontal", 2))
sketch6.addConstraint(Sketcher.Constraint("Vertical", 3))
sketch6.addConstraint(Sketcher.Constraint("Horizontal", 4))
sketch6.addConstraint(Sketcher.Constraint("Vertical", 5))
sketch6.addConstraint(Sketcher.Constraint("Horizontal", 6))
sketch6.addConstraint(Sketcher.Constraint("Vertical", 7))
sketch6.addConstraint(Sketcher.Constraint("Horizontal", 8))
sketch6.addConstraint(Sketcher.Constraint("Vertical", 9))
sketch6.addConstraint(Sketcher.Constraint("Horizontal", 10))
sketch6.addConstraint(Sketcher.Constraint("Vertical", 11))
sketch6.addConstraint(Sketcher.Constraint("Horizontal", 12))
sketch6.addConstraint(Sketcher.Constraint("Vertical", 13))
sketch6.addConstraint(Sketcher.Constraint("Horizontal", 14))
sketch6.addConstraint(Sketcher.Constraint("Vertical", 15))
sketch6.addConstraint(Sketcher.Constraint("Horizontal", 16))
sketch6.addConstraint(Sketcher.Constraint("Vertical", 17))
sketch6.addConstraint(Sketcher.Constraint("Horizontal", 18))
sketch6.addConstraint(Sketcher.Constraint("Vertical", 19))
sketch6.addConstraint(Sketcher.Constraint("Horizontal", 20))
sketch6.addConstraint(Sketcher.Constraint("Vertical", 21))
sketch6.addConstraint(Sketcher.Constraint("Horizontal", 22))
sketch6.addConstraint(Sketcher.Constraint("Vertical", 23))
sketch6.addConstraint(Sketcher.Constraint("Horizontal", 24))
sketch6.addConstraint(Sketcher.Constraint("Vertical", 25))
sketch6.addConstraint(Sketcher.Constraint("Horizontal", 26))
sketch6.addConstraint(Sketcher.Constraint("Vertical", 27))
sketch6.addConstraint(Sketcher.Constraint("Horizontal", 28))
sketch6.addConstraint(Sketcher.Constraint("Vertical", 29))
sketch6.addConstraint(Sketcher.Constraint("Horizontal", 30))
sketch6.addConstraint(Sketcher.Constraint("Vertical", 31))
sketch6.addConstraint(Sketcher.Constraint("PointOnObject", 2, 2, -2))
sketch6.addConstraint(Sketcher.Constraint("PointOnObject", 6, 2, -2))
sketch6.addConstraint(Sketcher.Constraint("PointOnObject", 10, 2, -2))
sketch6.addConstraint(Sketcher.Constraint("PointOnObject", 14, 2, -2))
sketch6.addConstraint(Sketcher.Constraint("PointOnObject", 18, 2, -2))
sketch6.addConstraint(Sketcher.Constraint("PointOnObject", 22, 2, -2))
sketch6.addConstraint(Sketcher.Constraint("PointOnObject", 26, 2, -2))
sketch6.addConstraint(Sketcher.Constraint("PointOnObject", 30, 2, -2))
sketch6.addConstraint(Sketcher.Constraint("Vertical", 1, 2, 4, 2))
sketch6.addConstraint(Sketcher.Constraint("Vertical", 5, 2, 8, 2))
sketch6.addConstraint(Sketcher.Constraint("Vertical", 9, 2, 12, 2))
sketch6.addConstraint(Sketcher.Constraint("Vertical", 13, 2, 16, 2))
sketch6.addConstraint(Sketcher.Constraint("Vertical", 17, 2, 20, 2))
sketch6.addConstraint(Sketcher.Constraint("Vertical", 21, 2, 24, 2))
sketch6.addConstraint(Sketcher.Constraint("Vertical", 25, 2, 28, 2))
sketch6.addConstraint(Sketcher.Constraint("Equal", 3, 5))
sketch6.addConstraint(Sketcher.Constraint("Equal", 7, 9))
sketch6.addConstraint(Sketcher.Constraint("Equal", 11, 13))
sketch6.addConstraint(Sketcher.Constraint("Equal", 15, 17))
sketch6.addConstraint(Sketcher.Constraint("Equal", 19, 21))
sketch6.addConstraint(Sketcher.Constraint("Equal", 23, 25))
sketch6.addConstraint(Sketcher.Constraint("Equal", 27, 29))
sketch6.addConstraint(Sketcher.Constraint("DistanceX", 0, 2, 0, 1, 6.0))
sketch6.addConstraint(Sketcher.Constraint("DistanceY", 1, 2, 1, 1, 10.0))
sketch6.addConstraint(Sketcher.Constraint("DistanceY", 4, 2, 1, 2, 7.0))
sketch6.addConstraint(Sketcher.Constraint("DistanceY", 8, 2, 5, 2, 7.0))
sketch6.addConstraint(Sketcher.Constraint("DistanceY", 12, 2, 9, 2, 7.0))
sketch6.addConstraint(Sketcher.Constraint("DistanceY", 16, 2, 13, 2, 7.0))
sketch6.addConstraint(Sketcher.Constraint("DistanceY", 20, 2, 17, 2, 7.0))
sketch6.addConstraint(Sketcher.Constraint("DistanceY", 24, 2, 21, 2, 7.0))
sketch6.addConstraint(Sketcher.Constraint("DistanceY", 28, 2, 25, 2, 7.0))
sketch6.addConstraint(Sketcher.Constraint("DistanceY", -1, 1, 0, 2, 44.5))
sketch6.setExpression("Constraints[86]", "Params.sketch6_width")
sketch6.setExpression("Constraints[87]", "Params.sketch6_height")
pocket3 = body.newObject("PartDesign::Pocket", "Pocket002")
pocket3.Profile = sketch6
pocket3.Type = "ThroughAll"
pocket3.Midplane = True

# Sketch on XZ plane
sketch7 = body.newObject("Sketcher::SketchObject", "Sketch006")
sketch7.AttachmentSupport = (doc.getObject("XZ_Plane"), [""])
sketch7.MapMode = "FlatFace"
sketch7.addGeometry(Part.Circle(App.Vector(-94, 92, 0), App.Vector(0, 0, 1), 2), False)
sketch7.addGeometry(Part.Circle(App.Vector(-94, 92, 0), App.Vector(0, 0, 1), 1), False)
sketch7.addGeometry(Part.Circle(App.Vector(-19.7, 92, 0), App.Vector(0, 0, 1), 2), False)
sketch7.addGeometry(Part.Circle(App.Vector(-19.7, 92, 0), App.Vector(0, 0, 1), 1), False)
sketch7.addGeometry(Part.Circle(App.Vector(-94, 56.2, 0), App.Vector(0, 0, 1), 2), False)
sketch7.addGeometry(Part.Circle(App.Vector(-94, 56.2, 0), App.Vector(0, 0, 1), 1), False)
sketch7.addGeometry(Part.Circle(App.Vector(-19.7, 56.2, 0), App.Vector(0, 0, 1), 2), False)
sketch7.addGeometry(Part.Circle(App.Vector(-19.7, 56.2, 0), App.Vector(0, 0, 1), 1), False)
sketch7.addConstraint(Sketcher.Constraint("Coincident", 1, 3, 0, 3))
sketch7.addConstraint(Sketcher.Constraint("Coincident", 3, 3, 2, 3))
sketch7.addConstraint(Sketcher.Constraint("Coincident", 5, 3, 4, 3))
sketch7.addConstraint(Sketcher.Constraint("Coincident", 7, 3, 6, 3))
sketch7.addConstraint(Sketcher.Constraint("Equal", 0, 2))
sketch7.addConstraint(Sketcher.Constraint("Equal", 1, 3))
sketch7.addConstraint(Sketcher.Constraint("Equal", 2, 4))
sketch7.addConstraint(Sketcher.Constraint("Equal", 3, 5))
sketch7.addConstraint(Sketcher.Constraint("Equal", 4, 6))
sketch7.addConstraint(Sketcher.Constraint("Equal", 5, 7))
sketch7.addConstraint(Sketcher.Constraint("Horizontal", 1, 3, 2, 3))
sketch7.addConstraint(Sketcher.Constraint("Horizontal", 5, 3, 6, 3))
sketch7.addConstraint(Sketcher.Constraint("Vertical", 1, 3, 4, 3))
sketch7.addConstraint(Sketcher.Constraint("Vertical", 3, 3, 6, 3))
sketch7.addConstraint(Sketcher.Constraint("Diameter", 0, 4.0))
sketch7.addConstraint(Sketcher.Constraint("Diameter", 1, 1.96))
sketch7.addConstraint(Sketcher.Constraint("DistanceX", 0, 3, -1, 1, 94.0))
sketch7.addConstraint(Sketcher.Constraint("DistanceY", -1, 1, 0, 3, 92.0))
sketch7.addConstraint(Sketcher.Constraint("DistanceX", 2, 3, -1, 1, 19.73))
sketch7.addConstraint(Sketcher.Constraint("DistanceY", -1, 1, 4, 3, 56.16))
sketch7.setExpression("Constraints[14]", "Params.sketch7_diameter")
sketch7.setExpression("Constraints[15]", "Params.sketch7_diameter2")
pad4 = body.newObject("PartDesign::Pad", "Pad003")
pad4.Profile = sketch7
pad4.setExpression("Length", "Params.pad4_length")
doc.recompute()

fillet2 = body.newObject("PartDesign::Fillet", "Fillet001")
fillet2.Base = (pad4, edges_at(pad4, [
    (-96, 0, 92),
    (-21.73, 0, 56.16),
    (-96, 0, 56.16),
    (-21.73, 0, 92),
]))
fillet2.setExpression("Radius", "Params.fillet2_radius")

doc.recompute()
